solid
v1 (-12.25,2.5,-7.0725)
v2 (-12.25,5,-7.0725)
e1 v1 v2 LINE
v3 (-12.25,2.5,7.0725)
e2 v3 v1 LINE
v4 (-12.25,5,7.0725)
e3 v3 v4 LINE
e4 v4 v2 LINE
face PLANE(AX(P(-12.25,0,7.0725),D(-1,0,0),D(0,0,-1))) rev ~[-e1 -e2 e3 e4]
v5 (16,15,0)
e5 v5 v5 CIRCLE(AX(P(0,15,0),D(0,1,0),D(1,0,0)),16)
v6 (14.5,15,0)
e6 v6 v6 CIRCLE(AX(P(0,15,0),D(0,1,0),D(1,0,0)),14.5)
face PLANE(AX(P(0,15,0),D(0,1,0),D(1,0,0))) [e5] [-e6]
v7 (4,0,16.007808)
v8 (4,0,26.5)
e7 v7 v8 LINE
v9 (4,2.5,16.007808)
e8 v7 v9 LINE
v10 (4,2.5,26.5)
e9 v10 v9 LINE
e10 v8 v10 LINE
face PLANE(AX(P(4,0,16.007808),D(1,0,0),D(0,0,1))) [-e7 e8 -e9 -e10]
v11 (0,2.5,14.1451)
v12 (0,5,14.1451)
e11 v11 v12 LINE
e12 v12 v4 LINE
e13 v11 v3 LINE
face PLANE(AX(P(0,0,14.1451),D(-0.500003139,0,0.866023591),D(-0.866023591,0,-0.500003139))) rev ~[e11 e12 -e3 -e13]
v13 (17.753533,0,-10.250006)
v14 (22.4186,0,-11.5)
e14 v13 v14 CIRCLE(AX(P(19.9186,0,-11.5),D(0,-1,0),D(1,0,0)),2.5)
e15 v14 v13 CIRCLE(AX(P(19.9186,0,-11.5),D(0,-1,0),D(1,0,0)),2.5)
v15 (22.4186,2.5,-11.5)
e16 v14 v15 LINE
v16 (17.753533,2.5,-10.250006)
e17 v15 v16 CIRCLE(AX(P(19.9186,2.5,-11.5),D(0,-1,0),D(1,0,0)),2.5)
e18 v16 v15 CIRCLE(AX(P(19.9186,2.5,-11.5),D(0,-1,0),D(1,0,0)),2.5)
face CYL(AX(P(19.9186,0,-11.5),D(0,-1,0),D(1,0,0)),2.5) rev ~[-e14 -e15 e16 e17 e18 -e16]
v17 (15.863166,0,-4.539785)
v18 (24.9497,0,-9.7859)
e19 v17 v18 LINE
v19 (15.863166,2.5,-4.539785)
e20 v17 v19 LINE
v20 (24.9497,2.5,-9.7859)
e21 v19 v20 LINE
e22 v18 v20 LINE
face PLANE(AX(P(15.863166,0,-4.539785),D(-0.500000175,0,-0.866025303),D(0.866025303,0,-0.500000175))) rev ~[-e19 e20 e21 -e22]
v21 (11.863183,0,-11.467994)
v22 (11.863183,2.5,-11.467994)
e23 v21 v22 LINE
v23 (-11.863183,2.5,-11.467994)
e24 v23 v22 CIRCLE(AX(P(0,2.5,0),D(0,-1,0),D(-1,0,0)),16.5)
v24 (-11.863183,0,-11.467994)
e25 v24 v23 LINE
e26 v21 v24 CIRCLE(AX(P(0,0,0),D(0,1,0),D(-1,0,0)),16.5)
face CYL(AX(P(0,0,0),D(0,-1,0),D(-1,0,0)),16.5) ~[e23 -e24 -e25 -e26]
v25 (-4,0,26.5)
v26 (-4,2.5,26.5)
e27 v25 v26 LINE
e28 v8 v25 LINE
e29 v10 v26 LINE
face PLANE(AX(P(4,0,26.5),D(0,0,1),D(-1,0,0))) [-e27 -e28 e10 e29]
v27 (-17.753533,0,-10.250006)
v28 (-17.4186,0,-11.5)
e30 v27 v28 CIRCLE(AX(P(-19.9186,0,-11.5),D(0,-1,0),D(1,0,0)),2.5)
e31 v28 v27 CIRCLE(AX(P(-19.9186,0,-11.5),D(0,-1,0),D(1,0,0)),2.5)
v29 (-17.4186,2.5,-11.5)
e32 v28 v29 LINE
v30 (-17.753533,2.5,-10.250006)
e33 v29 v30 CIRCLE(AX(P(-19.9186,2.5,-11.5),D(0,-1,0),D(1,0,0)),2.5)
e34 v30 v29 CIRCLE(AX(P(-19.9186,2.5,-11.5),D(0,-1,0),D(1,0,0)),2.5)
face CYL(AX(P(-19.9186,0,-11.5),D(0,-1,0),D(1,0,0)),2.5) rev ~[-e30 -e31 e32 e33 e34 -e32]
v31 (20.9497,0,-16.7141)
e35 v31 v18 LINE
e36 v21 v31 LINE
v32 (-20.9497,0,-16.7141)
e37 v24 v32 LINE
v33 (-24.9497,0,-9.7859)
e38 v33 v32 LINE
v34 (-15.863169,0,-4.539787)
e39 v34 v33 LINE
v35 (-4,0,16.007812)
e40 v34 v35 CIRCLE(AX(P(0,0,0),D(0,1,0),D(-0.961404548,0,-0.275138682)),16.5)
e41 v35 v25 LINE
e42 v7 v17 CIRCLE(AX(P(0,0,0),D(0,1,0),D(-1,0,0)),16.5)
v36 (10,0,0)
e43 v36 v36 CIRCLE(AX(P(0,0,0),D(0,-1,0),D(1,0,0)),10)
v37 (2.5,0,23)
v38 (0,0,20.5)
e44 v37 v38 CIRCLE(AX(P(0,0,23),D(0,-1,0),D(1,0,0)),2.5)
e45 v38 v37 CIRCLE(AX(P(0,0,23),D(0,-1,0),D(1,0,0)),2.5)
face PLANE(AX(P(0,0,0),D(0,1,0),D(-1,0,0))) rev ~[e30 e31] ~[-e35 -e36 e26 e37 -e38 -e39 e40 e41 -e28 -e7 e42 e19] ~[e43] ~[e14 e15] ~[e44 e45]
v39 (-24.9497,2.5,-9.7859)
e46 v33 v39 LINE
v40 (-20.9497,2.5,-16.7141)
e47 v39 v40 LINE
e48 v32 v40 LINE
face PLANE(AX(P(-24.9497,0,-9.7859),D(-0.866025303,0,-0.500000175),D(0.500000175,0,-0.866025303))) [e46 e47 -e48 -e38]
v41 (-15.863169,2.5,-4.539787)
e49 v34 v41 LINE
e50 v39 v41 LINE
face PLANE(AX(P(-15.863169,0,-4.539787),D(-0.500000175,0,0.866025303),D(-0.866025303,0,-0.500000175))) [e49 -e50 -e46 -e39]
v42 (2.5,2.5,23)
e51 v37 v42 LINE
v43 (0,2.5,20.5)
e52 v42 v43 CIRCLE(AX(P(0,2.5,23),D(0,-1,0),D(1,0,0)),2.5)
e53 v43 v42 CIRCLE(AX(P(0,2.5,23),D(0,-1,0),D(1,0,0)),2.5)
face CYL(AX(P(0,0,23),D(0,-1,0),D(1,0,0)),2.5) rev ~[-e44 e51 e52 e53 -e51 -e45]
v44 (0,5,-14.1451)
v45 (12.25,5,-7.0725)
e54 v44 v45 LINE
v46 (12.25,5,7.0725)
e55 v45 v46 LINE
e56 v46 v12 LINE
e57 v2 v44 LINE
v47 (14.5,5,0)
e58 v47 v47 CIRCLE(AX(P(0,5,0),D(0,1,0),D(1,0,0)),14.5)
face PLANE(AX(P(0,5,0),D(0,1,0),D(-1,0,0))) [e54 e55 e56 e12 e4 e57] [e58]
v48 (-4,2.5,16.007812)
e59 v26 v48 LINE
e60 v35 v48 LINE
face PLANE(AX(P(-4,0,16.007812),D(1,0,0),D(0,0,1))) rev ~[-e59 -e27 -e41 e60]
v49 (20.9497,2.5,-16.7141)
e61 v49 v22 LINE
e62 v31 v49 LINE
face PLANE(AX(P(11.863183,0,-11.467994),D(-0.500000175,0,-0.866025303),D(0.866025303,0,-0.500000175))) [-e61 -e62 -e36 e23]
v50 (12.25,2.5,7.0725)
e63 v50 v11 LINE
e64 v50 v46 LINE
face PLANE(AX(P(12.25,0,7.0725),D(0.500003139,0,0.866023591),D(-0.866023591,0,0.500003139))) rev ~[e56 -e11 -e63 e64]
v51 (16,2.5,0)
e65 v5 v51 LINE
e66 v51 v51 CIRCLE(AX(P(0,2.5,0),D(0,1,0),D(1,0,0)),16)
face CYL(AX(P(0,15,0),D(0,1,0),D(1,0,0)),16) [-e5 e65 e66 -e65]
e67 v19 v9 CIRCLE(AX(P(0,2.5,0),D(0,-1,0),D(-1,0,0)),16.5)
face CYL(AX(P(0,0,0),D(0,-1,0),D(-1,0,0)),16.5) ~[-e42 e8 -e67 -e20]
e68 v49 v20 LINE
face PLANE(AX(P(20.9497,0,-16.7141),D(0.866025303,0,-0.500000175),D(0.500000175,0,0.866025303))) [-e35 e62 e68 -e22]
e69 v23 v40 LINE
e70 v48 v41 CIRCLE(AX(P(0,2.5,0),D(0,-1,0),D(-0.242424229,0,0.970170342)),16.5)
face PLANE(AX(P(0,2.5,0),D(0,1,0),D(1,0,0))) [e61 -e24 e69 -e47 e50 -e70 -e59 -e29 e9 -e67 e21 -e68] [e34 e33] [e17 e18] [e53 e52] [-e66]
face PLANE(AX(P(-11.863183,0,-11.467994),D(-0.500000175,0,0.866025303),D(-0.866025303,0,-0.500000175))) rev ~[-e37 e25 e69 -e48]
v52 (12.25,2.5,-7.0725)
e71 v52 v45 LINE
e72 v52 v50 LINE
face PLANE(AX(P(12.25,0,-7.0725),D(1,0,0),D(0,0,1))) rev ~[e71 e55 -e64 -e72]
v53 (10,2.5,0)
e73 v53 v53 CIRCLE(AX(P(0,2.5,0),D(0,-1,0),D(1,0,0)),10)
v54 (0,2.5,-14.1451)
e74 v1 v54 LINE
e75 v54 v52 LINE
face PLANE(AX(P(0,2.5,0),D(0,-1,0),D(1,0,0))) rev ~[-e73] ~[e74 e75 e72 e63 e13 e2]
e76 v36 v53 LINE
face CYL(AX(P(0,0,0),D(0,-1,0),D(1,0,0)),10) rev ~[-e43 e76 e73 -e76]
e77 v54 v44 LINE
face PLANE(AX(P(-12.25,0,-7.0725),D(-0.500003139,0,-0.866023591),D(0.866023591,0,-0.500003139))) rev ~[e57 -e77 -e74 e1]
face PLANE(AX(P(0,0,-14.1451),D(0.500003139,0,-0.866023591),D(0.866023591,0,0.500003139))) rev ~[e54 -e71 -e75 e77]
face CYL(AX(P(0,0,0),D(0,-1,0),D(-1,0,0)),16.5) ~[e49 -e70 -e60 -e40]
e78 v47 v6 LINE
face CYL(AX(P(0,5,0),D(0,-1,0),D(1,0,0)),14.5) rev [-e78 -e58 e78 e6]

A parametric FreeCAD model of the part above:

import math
import FreeCAD as App
import Part
import Sketcher
from FreeCAD import Vector
Q = App.Units.Quantity

doc = App.newDocument("Part")
body = doc.addObject("PartDesign::Body", "Body")

sketch1 = body.newObject("Sketcher::SketchObject", "Sketch")
sketch1.AttachmentSupport = (doc.getObject("XZ_Plane"), [""])
sketch1.MapMode = "FlatFace"
sketch1.addGeometry([
    Part.Circle(Vector(0, 0, 0), Vector(0, 0, 1), 16),
    Part.LineSegment(Vector(-12, 7, 0), Vector(-12, -7, 0)),
    Part.LineSegment(Vector(-12, -7, 0), Vector(0, -14, 0)),
    Part.LineSegment(Vector(0, -14, 0), Vector(12, -7, 0)),
    Part.LineSegment(Vector(12, -7, 0), Vector(12, 7, 0)),
    Part.LineSegment(Vector(12, 7, 0), Vector(0, 14, 0)),
    Part.LineSegment(Vector(0, 14, 0), Vector(-12, 7, 0)),
], False)
sketch1.addConstraint([
    Sketcher.Constraint("Coincident", 1, 2, 2, 1),
    Sketcher.Constraint("Coincident", 2, 2, 3, 1),
    Sketcher.Constraint("Coincident", 3, 2, 4, 1),
    Sketcher.Constraint("Coincident", 4, 2, 5, 1),
    Sketcher.Constraint("Coincident", 5, 2, 6, 1),
    Sketcher.Constraint("Coincident", 6, 2, 1, 1),
    Sketcher.Constraint("Vertical", 1),
    Sketcher.Constraint("Vertical", 4),
    Sketcher.Constraint("Coincident", 0, 3, -1, 1),
    Sketcher.Constraint("Symmetric", 1, 2, 4, 2, -1, 1),
    Sketcher.Constraint("Symmetric", 2, 2, 5, 2, -1, 1),
    Sketcher.Constraint("PointOnObject", 2, 2, -2),
    Sketcher.Constraint("Parallel", 3, 6),
    Sketcher.Constraint("Horizontal", 1, 2, 3, 2),
    Sketcher.Constraint("Diameter", 0, Q("33 mm")),
    Sketcher.Constraint("DistanceX", 1, 2, -1, 1, Q("12.25 mm")),
    Sketcher.Constraint("Angle", 2, Q("-30.0002 deg")),
    Sketcher.Constraint("DistanceY", 1, 2, 1, 1, Q("14.145 mm")),
])
pad1 = body.newObject("PartDesign::Pad", "Pad")
pad1.Profile = sketch1
pad1.Length = 5
pad1.Reversed = True

sketch2 = body.newObject("Sketcher::SketchObject", "Sketch001")
sketch2.AttachmentSupport = (doc.getObject("XZ_Plane"), [""])
sketch2.MapMode = "FlatFace"
sketch2.addGeometry([
    Part.LineSegment(Vector(12, 7, 0), Vector(0, 14, 0)),
    Part.LineSegment(Vector(0, 14, 0), Vector(-12, 7, 0)),
    Part.LineSegment(Vector(-12, 7, 0), Vector(-12, -7, 0)),
    Part.LineSegment(Vector(-12, -7, 0), Vector(0, -14, 0)),
    Part.LineSegment(Vector(0, -14, 0), Vector(12, -7, 0)),
    Part.LineSegment(Vector(12, -7, 0), Vector(12, 7, 0)),
], False)
sketch2.addConstraint([
    Sketcher.Constraint("Coincident", 0, 2, 1, 1),
    Sketcher.Constraint("Coincident", 1, 2, 2, 1),
    Sketcher.Constraint("Coincident", 2, 2, 3, 1),
    Sketcher.Constraint("Coincident", 3, 2, 4, 1),
    Sketcher.Constraint("Coincident", 4, 2, 5, 1),
    Sketcher.Constraint("Coincident", 5, 2, 0, 1),
    Sketcher.Constraint("Vertical", 2),
    Sketcher.Constraint("Vertical", 5),
    Sketcher.Constraint("Symmetric", 0, 2, 3, 2, -1, 1),
    Sketcher.Constraint("Symmetric", 1, 2, 4, 2, -1, 1),
    Sketcher.Constraint("PointOnObject", 0, 2, -2),
    Sketcher.Constraint("Parallel", 0, 3),
    Sketcher.Constraint("Horizontal", 2, 2, 4, 2),
    Sketcher.Constraint("Angle", 0, Q("149.9998 deg")),
    Sketcher.Constraint("DistanceX", 2, 2, 4, 2, Q("24.5 mm")),
    Sketcher.Constraint("DistanceY", 2, 2, 2, 1, Q("14.145 mm")),
])
pad2 = body.newObject("PartDesign::Pad", "Pad001")
pad2.Profile = sketch2
pad2.Length = 2.5
pad2.Reversed = True

sketch3 = body.newObject("Sketcher::SketchObject", "Sketch002")
sketch3.AttachmentSupport = (doc.getObject("XZ_Plane"), [""])
sketch3.MapMode = "FlatFace"
sketch3.addGeometry(Part.Circle(Vector(0, 0, 0), Vector(0, 0, 1), 10), False)
sketch3.addConstraint([
    Sketcher.Constraint("Coincident", 0, 3, -1, 1),
    Sketcher.Constraint("Diameter", 0, Q("20 mm")),
])
pocket1 = body.newObject("PartDesign::Pocket", "Pocket")
pocket1.Profile = sketch3
pocket1.Length = 2.5

sketch4 = body.newObject("Sketcher::SketchObject", "Sketch003")
sketch4.AttachmentSupport = (doc.getObject("XZ_Plane"), [""])
sketch4.MapMode = "FlatFace"
sketch4.AttachmentOffset = App.Placement(Vector(0, 0, -5), App.Rotation())
sketch4.addGeometry([
    Part.Circle(Vector(0, 0, 0), Vector(0, 0, 1), 16),
    Part.Circle(Vector(0, 0, 0), Vector(0, 0, 1), 14),
], False)
sketch4.addConstraint([
    Sketcher.Constraint("Coincident", 0, 3, -1, 1),
    Sketcher.Constraint("Coincident", 1, 3, -1, 1),
    Sketcher.Constraint("Diameter", 1, Q("29 mm")),
    Sketcher.Constraint("Diameter", 0, Q("33 mm")),
])
pad3 = body.newObject("PartDesign::Pad", "Pad002")
pad3.Profile = sketch4
pad3.Length = 10
pad3.Reversed = True

sketch5 = body.newObject("Sketcher::SketchObject", "Sketch004")
sketch5.AttachmentSupport = (doc.getObject("XZ_Plane"), [""])
sketch5.MapMode = "FlatFace"
sketch5.addGeometry([
    Part.ArcOfCircle(Part.Circle(Vector(0, 0, 0), Vector(0, 0, 1), 16.5), math.radians(75.97), math.radians(90)),
    Part.LineSegment(Vector(4, 16, 0), Vector(4, 26.5, 0)),
    Part.LineSegment(Vector(4, 26.5, 0), Vector(-4, 26.5, 0)),
    Part.LineSegment(Vector(-4, 26.5, 0), Vector(-4, 16, 0)),
    Part.ArcOfCircle(Part.Circle(Vector(0, 0, 0), Vector(0, 0, 1), 16.5), math.radians(90), math.radians(104.03)),
    Part.Circle(Vector(0, 23, 0), Vector(0, 0, 1), 2.5),
    Part.LineSegment(Vector(24.9, -9.8, 0), Vector(15.9, -4.5, 0)),
    Part.ArcOfCircle(Part.Circle(Vector(0, 0, 0), Vector(0, 0, 1), 16.5), math.radians(-30), math.radians(-15.97)),
    Part.ArcOfCircle(Part.Circle(Vector(0, 0, 0), Vector(0, 0, 1), 16.5), math.radians(-44.03), math.radians(-30)),
    Part.LineSegment(Vector(11.9, -11.5, 0), Vector(20.9, -16.7, 0)),
    Part.LineSegment(Vector(20.9, -16.7, 0), Vector(24.9, -9.8, 0)),
    Part.Circle(Vector(19.9, -11.5, 0), Vector(0, 0, 1), 2.5),
    Part.ArcOfCircle(Part.Circle(Vector(0, 0, 0), Vector(0, 0, 1), 16.5), math.radians(-164.03), math.radians(-150)),
    Part.LineSegment(Vector(-15.9, -4.5, 0), Vector(-24.9, -9.8, 0)),
    Part.LineSegment(Vector(-24.9, -9.8, 0), Vector(-20.9, -16.7, 0)),
    Part.LineSegment(Vector(-20.9, -16.7, 0), Vector(-11.9, -11.5, 0)),
    Part.ArcOfCircle(Part.Circle(Vector(0, 0, 0), Vector(0, 0, 1), 16.5), math.radians(-150), math.radians(-135.97)),
    Part.Circle(Vector(-19.9, -11.5, 0), Vector(0, 0, 1), 2.5),
], False)
sketch5.addConstraint([
    Sketcher.Constraint("Coincident", 0, 1, 1, 1),
    Sketcher.Constraint("Coincident", 1, 2, 2, 1),
    Sketcher.Constraint("Coincident", 2, 2, 3, 1),
    Sketcher.Constraint("Coincident", 3, 2, 4, 2),
    Sketcher.Constraint("Tangent", 4, 1, 0, 2),
    Sketcher.Constraint("Coincident", 6, 2, 7, 2),
    Sketcher.Constraint("Tangent", 7, 1, 8, 2),
    Sketcher.Constraint("Coincident", 8, 1, 9, 1),
    Sketcher.Constraint("Coincident", 9, 2, 10, 1),
    Sketcher.Constraint("Coincident", 10, 2, 6, 1),
    Sketcher.Constraint("Coincident", 12, 1, 13, 1),
    Sketcher.Constraint("Coincident", 13, 2, 14, 1),
    Sketcher.Constraint("Coincident", 14, 2, 15, 1),
    Sketcher.Constraint("Coincident", 15, 2, 16, 2),
    Sketcher.Constraint("Tangent", 16, 1, 12, 2),
    Sketcher.Constraint("Vertical", 1),
    Sketcher.Constraint("Horizontal", 2),
    Sketcher.Constraint("Vertical", 3),
    Sketcher.Constraint("Coincident", 0, 3, -1, 1),
    Sketcher.Constraint("Coincident", 7, 3, -1, 1),
    Sketcher.Constraint("Coincident", 12, 3, -1, 1),
    Sketcher.Constraint("Equal", 0, 4),
    Sketcher.Constraint("Equal", 4, 7),
    Sketcher.Constraint("Equal", 7, 8),
    Sketcher.Constraint("Equal", 5, 11),
    Sketcher.Constraint("Equal", 8, 12),
    Sketcher.Constraint("Equal", 12, 16),
    Sketcher.Constraint("Equal", 11, 17),
    Sketcher.Constraint("Symmetric", 11, 3, 17, 3, -2),
    Sketcher.Constraint("Symmetric", 10, 2, 13, 2, -2),
    Sketcher.Constraint("Symmetric", 9, 2, 14, 2, -2),
    Sketcher.Constraint("PointOnObject", 5, 3, -2),
    Sketcher.Constraint("PointOnObject", 4, 1, -2),
    Sketcher.Constraint("Parallel", 6, 9),
    Sketcher.Constraint("Perpendicular", 9, 10),
    Sketcher.Constraint("Perpendicular", 13, 14),
    Sketcher.Constraint("Perpendicular", 14, 15),
    Sketcher.Constraint("Horizontal", 0, 1, 3, 2),
    Sketcher.Constraint("Horizontal", 7, 1, 16, 1),
    Sketcher.Constraint("Equal", 6, 9),
    Sketcher.Constraint("Diameter", 5, Q("5 mm")),
    Sketcher.Constraint("DistanceX", 2, 2, 2, 1, Q("8 mm")),
    Sketcher.Constraint("Distance", 10, Q("8 mm")),
    Sketcher.Constraint("DistanceX", 8, 1, 6, 2, Q("4 mm")),
    Sketcher.Constraint("Radius", 0, Q("16.5 mm")),
    Sketcher.Constraint("DistanceY", 4, 1, 5, 3, Q("6.5 mm")),
    Sketcher.Constraint("DistanceY", 4, 1, 1, 2, Q("10 mm")),
    Sketcher.Constraint("DistanceY", 11, 3, -1, 1, Q("11.5 mm")),
    Sketcher.Constraint("DistanceY", 7, 1, -1, 1, Q("8.25 mm")),
    Sketcher.Constraint("DistanceY", 9, 2, -1, 1, Q("16.714 mm")),
    Sketcher.Constraint("DistanceX", 11, 3, 9, 2, Q("1.031 mm")),
])
pad4 = body.newObject("PartDesign::Pad", "Pad003")
pad4.Profile = sketch5
pad4.Length = 2.5
pad4.Reversed = True

sketch6 = body.newObject("Sketcher::SketchObject", "Sketch005")
sketch6.AttachmentSupport = (doc.getObject("XZ_Plane"), [""])
sketch6.MapMode = "FlatFace"
sketch6.AttachmentOffset = App.Placement(Vector(0, 0, -15), App.Rotation())
sketch6.addGeometry([
    Part.Circle(Vector(0, 0, 0), Vector(0, 0, 1), 18),
    Part.Circle(Vector(0, 0, 0), Vector(0, 0, 1), 16),
], False)
sketch6.addConstraint([
    Sketcher.Constraint("Coincident", 0, 3, -1, 1),
    Sketcher.Constraint("Coincident", 1, 3, -1, 1),
    Sketcher.Constraint("Diameter", 1, Q("32 mm")),
    Sketcher.Constraint("Diameter", 0, Q("35.7312 mm")),
])
pocket2 = body.newObject("PartDesign::Pocket", "Pocket001")
pocket2.Profile = sketch6
pocket2.Length = 12.5
pocket2.Reversed = True

doc.recompute()
